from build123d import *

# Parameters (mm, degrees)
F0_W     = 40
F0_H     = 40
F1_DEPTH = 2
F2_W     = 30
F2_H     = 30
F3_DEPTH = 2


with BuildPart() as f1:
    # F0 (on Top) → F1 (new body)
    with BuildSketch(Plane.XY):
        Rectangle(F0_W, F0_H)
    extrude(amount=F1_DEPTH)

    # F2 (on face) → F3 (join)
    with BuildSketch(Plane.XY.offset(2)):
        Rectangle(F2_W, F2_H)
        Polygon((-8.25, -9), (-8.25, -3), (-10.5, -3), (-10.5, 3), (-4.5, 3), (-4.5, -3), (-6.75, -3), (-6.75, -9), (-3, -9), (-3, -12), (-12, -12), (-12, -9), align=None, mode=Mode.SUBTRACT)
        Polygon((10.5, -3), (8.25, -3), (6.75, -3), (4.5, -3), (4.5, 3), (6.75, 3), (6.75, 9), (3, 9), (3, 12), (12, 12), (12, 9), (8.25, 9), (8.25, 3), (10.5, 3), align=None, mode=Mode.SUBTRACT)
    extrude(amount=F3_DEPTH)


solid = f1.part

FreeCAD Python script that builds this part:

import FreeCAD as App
import Part
import Sketcher

V = App.Vector

doc = App.newDocument("Part")
params = doc.addObject("Spreadsheet::Sheet", "Params")
for row, (alias, value) in enumerate([
    ("sketch1_width", "40 mm"),
    ("pad1_length", "2 mm"),
    ("sketch2_width", "30 mm"),
    ("sketch2_width2", "6 mm"),
    ("sketch2_width3", "9 mm"),
    ("sketch2_height", "3 mm"),
    ("sketch2_width4", "3.75 mm"),
    ("pad2_length", "2 mm"),
], start=1):
    params.set(f"A{row}", alias)
    params.set(f"B{row}", "=" + value)
    params.setAlias(f"B{row}", alias)

body = doc.addObject("PartDesign::Body", "Body")

# Sketch on XY plane
sketch1 = body.newObject("Sketcher::SketchObject", "Sketch")
sketch1.AttachmentSupport = (doc.getObject("XY_Plane"), [""])
sketch1.MapMode = "FlatFace"
sketch1.addGeometry([
    Part.LineSegment(V(-20, 20, 0), V(-20, -20, 0)),
    Part.LineSegment(V(-20, -20, 0), V(20, -20, 0)),
    Part.LineSegment(V(20, -20, 0), V(20, 20, 0)),
    Part.LineSegment(V(20, 20, 0), V(-20, 20, 0)),
], False)
sketch1.addConstraint([
    Sketcher.Constraint("Coincident", 0, 2, 1, 1),
    Sketcher.Constraint("Coincident", 1, 2, 2, 1),
    Sketcher.Constraint("Coincident", 2, 2, 3, 1),
    Sketcher.Constraint("Coincident", 3, 2, 0, 1),
    Sketcher.Constraint("Vertical", 0),
    Sketcher.Constraint("Horizontal", 1),
    Sketcher.Constraint("Vertical", 2),
    Sketcher.Constraint("Horizontal", 3),
    Sketcher.Constraint("Symmetric", 0, 2, 2, 2, -1, 1),
    Sketcher.Constraint("Equal", 3, 0),
    Sketcher.Constraint("DistanceX", 1, 1, 1, 2, 40.0),
])
sketch1.setExpression("Constraints[10]", "Params.sketch1_width")
pad1 = body.newObject("PartDesign::Pad", "Pad")
pad1.Profile = sketch1
pad1.setExpression("Length", "Params.pad1_length")

# Sketch on XY plane
sketch2 = body.newObject("Sketcher::SketchObject", "Sketch001")
sketch2.AttachmentSupport = (doc.getObject("XY_Plane"), [""])
sketch2.MapMode = "FlatFace"
sketch2.AttachmentOffset = App.Placement(V(0, 0, 2), App.Rotation())
sketch2.addGeometry([
    Part.LineSegment(V(-15, 15, 0), V(-15, -15, 0)),  # 0
    Part.LineSegment(V(-15, -15, 0), V(15, -15, 0)),  # 1
    Part.LineSegment(V(15, -15, 0), V(15, 15, 0)),  # 2
    Part.LineSegment(V(15, 15, 0), V(-15, 15, 0)),  # 3
    Part.LineSegment(V(-12, -9, 0), V(-8.2, -9, 0)),  # 4
    Part.LineSegment(V(-8.2, -9, 0), V(-8.2, -3, 0)),  # 5
    Part.LineSegment(V(-8.2, -3, 0), V(-10.5, -3, 0)),  # 6
    Part.LineSegment(V(-10.5, -3, 0), V(-10.5, 3, 0)),  # 7
    Part.LineSegment(V(-10.5, 3, 0), V(-4.5, 3, 0)),  # 8
    Part.LineSegment(V(-4.5, 3, 0), V(-4.5, -3, 0)),  # 9
    Part.LineSegment(V(-4.5, -3, 0), V(-6.8, -3, 0)),  # 10
    Part.LineSegment(V(-6.8, -3, 0), V(-6.8, -9, 0)),  # 11
    Part.LineSegment(V(-6.8, -9, 0), V(-3, -9, 0)),  # 12
    Part.LineSegment(V(-3, -9, 0), V(-3, -12, 0)),  # 13
    Part.LineSegment(V(-3, -12, 0), V(-12, -12, 0)),  # 14
    Part.LineSegment(V(-12, -12, 0), V(-12, -9, 0)),  # 15
    Part.LineSegment(V(10.5, 3, 0), V(10.5, -3, 0)),  # 16
    Part.LineSegment(V(10.5, -3, 0), V(4.5, -3, 0)),  # 17
    Part.LineSegment(V(4.5, -3, 0), V(4.5, 3, 0)),  # 18
    Part.LineSegment(V(4.5, 3, 0), V(6.8, 3, 0)),  # 19
    Part.LineSegment(V(6.8, 3, 0), V(6.8, 9, 0)),  # 20
    Part.LineSegment(V(6.8, 9, 0), V(3, 9, 0)),  # 21
    Part.LineSegment(V(3, 9, 0), V(3, 12, 0)),  # 22
    Part.LineSegment(V(3, 12, 0), V(12, 12, 0)),  # 23
    Part.LineSegment(V(12, 12, 0), V(12, 9, 0)),  # 24
    Part.LineSegment(V(12, 9, 0), V(8.2, 9, 0)),  # 25
    Part.LineSegment(V(8.2, 9, 0), V(8.2, 3, 0)),  # 26
    Part.LineSegment(V(8.2, 3, 0), V(10.5, 3, 0)),  # 27
], False)
sketch2.addConstraint([
    Sketcher.Constraint("Coincident", 0, 2, 1, 1),
    Sketcher.Constraint("Coincident", 1, 2, 2, 1),
    Sketcher.Constraint("Coincident", 2, 2, 3, 1),
    Sketcher.Constraint("Coincident", 3, 2, 0, 1),
    Sketcher.Constraint("Coincident", 4, 2, 5, 1),
    Sketcher.Constraint("Coincident", 5, 2, 6, 1),
    Sketcher.Constraint("Coincident", 6, 2, 7, 1),
    Sketcher.Constraint("Coincident", 7, 2, 8, 1),
    Sketcher.Constraint("Coincident", 8, 2, 9, 1),
    Sketcher.Constraint("Coincident", 9, 2, 10, 1),
    Sketcher.Constraint("Coincident", 10, 2, 11, 1),
    Sketcher.Constraint("Coincident", 11, 2, 12, 1),
    Sketcher.Constraint("Coincident", 12, 2, 13, 1),
    Sketcher.Constraint("Coincident", 13, 2, 14, 1),
    Sketcher.Constraint("Coincident", 14, 2, 15, 1),
    Sketcher.Constraint("Coincident", 15, 2, 4, 1),
    Sketcher.Constraint("Coincident", 16, 2, 17, 1),
    Sketcher.Constraint("Coincident", 17, 2, 18, 1),
    Sketcher.Constraint("Coincident", 18, 2, 19, 1),
    Sketcher.Constraint("Coincident", 19, 2, 20, 1),
    Sketcher.Constraint("Coincident", 20, 2, 21, 1),
    Sketcher.Constraint("Coincident", 21, 2, 22, 1),
    Sketcher.Constraint("Coincident", 22, 2, 23, 1),
    Sketcher.Constraint("Coincident", 23, 2, 24, 1),
    Sketcher.Constraint("Coincident", 24, 2, 25, 1),
    Sketcher.Constraint("Coincident", 25, 2, 26, 1),
    Sketcher.Constraint("Coincident", 26, 2, 27, 1),
    Sketcher.Constraint("Coincident", 27, 2, 16, 1),
    Sketcher.Constraint("Vertical", 0),
    Sketcher.Constraint("Horizontal", 1),
    Sketcher.Constraint("Vertical", 2),
    Sketcher.Constraint("Horizontal", 3),
    Sketcher.Constraint("Horizontal", 4),
    Sketcher.Constraint("Vertical", 5),
    Sketcher.Constraint("Horizontal", 6),
    Sketcher.Constraint("Vertical", 7),
    Sketcher.Constraint("Horizontal", 8),
    Sketcher.Constraint("Vertical", 9),
    Sketcher.Constraint("Horizontal", 10),
    Sketcher.Constraint("Vertical", 11),
    Sketcher.Constraint("Horizontal", 12),
    Sketcher.Constraint("Vertical", 13),
    Sketcher.Constraint("Horizontal", 14),
    Sketcher.Constraint("Vertical", 15),
    Sketcher.Constraint("Vertical", 16),
    Sketcher.Constraint("Horizontal", 17),
    Sketcher.Constraint("Vertical", 18),
    Sketcher.Constraint("Horizontal", 19),
    Sketcher.Constraint("Vertical", 20),
    Sketcher.Constraint("Horizontal", 21),
    Sketcher.Constraint("Vertical", 22),
    Sketcher.Constraint("Horizontal", 23),
    Sketcher.Constraint("Vertical", 24),
    Sketcher.Constraint("Horizontal", 25),
    Sketcher.Constraint("Vertical", 26),
    Sketcher.Constraint("Horizontal", 27),
    Sketcher.Constraint("Symmetric", 0, 2, 2, 2, -1, 1),
    Sketcher.Constraint("Symmetric", 7, 2, 16, 2, -1, 1),
    Sketcher.Constraint("Symmetric", 9, 2, 18, 2, -1, 1),
    Sketcher.Constraint("Symmetric", 11, 2, 20, 2, -1, 1),
    Sketcher.Constraint("Symmetric", 13, 2, 22, 2, -1, 1),
    Sketcher.Constraint("Symmetric", 15, 2, 24, 2, -1, 1),
    Sketcher.Constraint("Symmetric", 5, 2, 26, 2, -1, 1),
    Sketcher.Constraint("Horizontal", 6, 2, 9, 2),
    Sketcher.Constraint("Horizontal", 4, 2, 11, 2),
    Sketcher.Constraint("Horizontal", 10, 2, 16, 2),
    Sketcher.Constraint("Equal", 6, 10),
    Sketcher.Constraint("Equal", 4, 12),
    Sketcher.Constraint("Equal", 3, 0),
    Sketcher.Constraint("Equal", 17, 5),
    Sketcher.Constraint("Equal", 5, 7),
    Sketcher.Constraint("DistanceX", 1, 1, 1, 2, 30.0),
    Sketcher.Constraint("DistanceX", 8, 1, 8, 2, 6.0),
    Sketcher.Constraint("DistanceX", 14, 2, 14, 1, 9.0),
    Sketcher.Constraint("DistanceY", 13, 2, 13, 1, 3.0),
    Sketcher.Constraint("DistanceX", 12, 2, -1, 1, 3.0),
    Sketcher.Constraint("DistanceX", 4, 1, 4, 2, 3.75),
])
sketch2.setExpression("Constraints[71]", "Params.sketch2_width")
sketch2.setExpression("Constraints[72]", "Params.sketch2_width2")
sketch2.setExpression("Constraints[73]", "Params.sketch2_width3")
sketch2.setExpression("Constraints[74]", "Params.sketch2_height")
sketch2.setExpression("Constraints[76]", "Params.sketch2_width4")
pad2 = body.newObject("PartDesign::Pad", "Pad001")
pad2.Profile = sketch2
pad2.setExpression("Length", "Params.pad2_length")

doc.recompute()
